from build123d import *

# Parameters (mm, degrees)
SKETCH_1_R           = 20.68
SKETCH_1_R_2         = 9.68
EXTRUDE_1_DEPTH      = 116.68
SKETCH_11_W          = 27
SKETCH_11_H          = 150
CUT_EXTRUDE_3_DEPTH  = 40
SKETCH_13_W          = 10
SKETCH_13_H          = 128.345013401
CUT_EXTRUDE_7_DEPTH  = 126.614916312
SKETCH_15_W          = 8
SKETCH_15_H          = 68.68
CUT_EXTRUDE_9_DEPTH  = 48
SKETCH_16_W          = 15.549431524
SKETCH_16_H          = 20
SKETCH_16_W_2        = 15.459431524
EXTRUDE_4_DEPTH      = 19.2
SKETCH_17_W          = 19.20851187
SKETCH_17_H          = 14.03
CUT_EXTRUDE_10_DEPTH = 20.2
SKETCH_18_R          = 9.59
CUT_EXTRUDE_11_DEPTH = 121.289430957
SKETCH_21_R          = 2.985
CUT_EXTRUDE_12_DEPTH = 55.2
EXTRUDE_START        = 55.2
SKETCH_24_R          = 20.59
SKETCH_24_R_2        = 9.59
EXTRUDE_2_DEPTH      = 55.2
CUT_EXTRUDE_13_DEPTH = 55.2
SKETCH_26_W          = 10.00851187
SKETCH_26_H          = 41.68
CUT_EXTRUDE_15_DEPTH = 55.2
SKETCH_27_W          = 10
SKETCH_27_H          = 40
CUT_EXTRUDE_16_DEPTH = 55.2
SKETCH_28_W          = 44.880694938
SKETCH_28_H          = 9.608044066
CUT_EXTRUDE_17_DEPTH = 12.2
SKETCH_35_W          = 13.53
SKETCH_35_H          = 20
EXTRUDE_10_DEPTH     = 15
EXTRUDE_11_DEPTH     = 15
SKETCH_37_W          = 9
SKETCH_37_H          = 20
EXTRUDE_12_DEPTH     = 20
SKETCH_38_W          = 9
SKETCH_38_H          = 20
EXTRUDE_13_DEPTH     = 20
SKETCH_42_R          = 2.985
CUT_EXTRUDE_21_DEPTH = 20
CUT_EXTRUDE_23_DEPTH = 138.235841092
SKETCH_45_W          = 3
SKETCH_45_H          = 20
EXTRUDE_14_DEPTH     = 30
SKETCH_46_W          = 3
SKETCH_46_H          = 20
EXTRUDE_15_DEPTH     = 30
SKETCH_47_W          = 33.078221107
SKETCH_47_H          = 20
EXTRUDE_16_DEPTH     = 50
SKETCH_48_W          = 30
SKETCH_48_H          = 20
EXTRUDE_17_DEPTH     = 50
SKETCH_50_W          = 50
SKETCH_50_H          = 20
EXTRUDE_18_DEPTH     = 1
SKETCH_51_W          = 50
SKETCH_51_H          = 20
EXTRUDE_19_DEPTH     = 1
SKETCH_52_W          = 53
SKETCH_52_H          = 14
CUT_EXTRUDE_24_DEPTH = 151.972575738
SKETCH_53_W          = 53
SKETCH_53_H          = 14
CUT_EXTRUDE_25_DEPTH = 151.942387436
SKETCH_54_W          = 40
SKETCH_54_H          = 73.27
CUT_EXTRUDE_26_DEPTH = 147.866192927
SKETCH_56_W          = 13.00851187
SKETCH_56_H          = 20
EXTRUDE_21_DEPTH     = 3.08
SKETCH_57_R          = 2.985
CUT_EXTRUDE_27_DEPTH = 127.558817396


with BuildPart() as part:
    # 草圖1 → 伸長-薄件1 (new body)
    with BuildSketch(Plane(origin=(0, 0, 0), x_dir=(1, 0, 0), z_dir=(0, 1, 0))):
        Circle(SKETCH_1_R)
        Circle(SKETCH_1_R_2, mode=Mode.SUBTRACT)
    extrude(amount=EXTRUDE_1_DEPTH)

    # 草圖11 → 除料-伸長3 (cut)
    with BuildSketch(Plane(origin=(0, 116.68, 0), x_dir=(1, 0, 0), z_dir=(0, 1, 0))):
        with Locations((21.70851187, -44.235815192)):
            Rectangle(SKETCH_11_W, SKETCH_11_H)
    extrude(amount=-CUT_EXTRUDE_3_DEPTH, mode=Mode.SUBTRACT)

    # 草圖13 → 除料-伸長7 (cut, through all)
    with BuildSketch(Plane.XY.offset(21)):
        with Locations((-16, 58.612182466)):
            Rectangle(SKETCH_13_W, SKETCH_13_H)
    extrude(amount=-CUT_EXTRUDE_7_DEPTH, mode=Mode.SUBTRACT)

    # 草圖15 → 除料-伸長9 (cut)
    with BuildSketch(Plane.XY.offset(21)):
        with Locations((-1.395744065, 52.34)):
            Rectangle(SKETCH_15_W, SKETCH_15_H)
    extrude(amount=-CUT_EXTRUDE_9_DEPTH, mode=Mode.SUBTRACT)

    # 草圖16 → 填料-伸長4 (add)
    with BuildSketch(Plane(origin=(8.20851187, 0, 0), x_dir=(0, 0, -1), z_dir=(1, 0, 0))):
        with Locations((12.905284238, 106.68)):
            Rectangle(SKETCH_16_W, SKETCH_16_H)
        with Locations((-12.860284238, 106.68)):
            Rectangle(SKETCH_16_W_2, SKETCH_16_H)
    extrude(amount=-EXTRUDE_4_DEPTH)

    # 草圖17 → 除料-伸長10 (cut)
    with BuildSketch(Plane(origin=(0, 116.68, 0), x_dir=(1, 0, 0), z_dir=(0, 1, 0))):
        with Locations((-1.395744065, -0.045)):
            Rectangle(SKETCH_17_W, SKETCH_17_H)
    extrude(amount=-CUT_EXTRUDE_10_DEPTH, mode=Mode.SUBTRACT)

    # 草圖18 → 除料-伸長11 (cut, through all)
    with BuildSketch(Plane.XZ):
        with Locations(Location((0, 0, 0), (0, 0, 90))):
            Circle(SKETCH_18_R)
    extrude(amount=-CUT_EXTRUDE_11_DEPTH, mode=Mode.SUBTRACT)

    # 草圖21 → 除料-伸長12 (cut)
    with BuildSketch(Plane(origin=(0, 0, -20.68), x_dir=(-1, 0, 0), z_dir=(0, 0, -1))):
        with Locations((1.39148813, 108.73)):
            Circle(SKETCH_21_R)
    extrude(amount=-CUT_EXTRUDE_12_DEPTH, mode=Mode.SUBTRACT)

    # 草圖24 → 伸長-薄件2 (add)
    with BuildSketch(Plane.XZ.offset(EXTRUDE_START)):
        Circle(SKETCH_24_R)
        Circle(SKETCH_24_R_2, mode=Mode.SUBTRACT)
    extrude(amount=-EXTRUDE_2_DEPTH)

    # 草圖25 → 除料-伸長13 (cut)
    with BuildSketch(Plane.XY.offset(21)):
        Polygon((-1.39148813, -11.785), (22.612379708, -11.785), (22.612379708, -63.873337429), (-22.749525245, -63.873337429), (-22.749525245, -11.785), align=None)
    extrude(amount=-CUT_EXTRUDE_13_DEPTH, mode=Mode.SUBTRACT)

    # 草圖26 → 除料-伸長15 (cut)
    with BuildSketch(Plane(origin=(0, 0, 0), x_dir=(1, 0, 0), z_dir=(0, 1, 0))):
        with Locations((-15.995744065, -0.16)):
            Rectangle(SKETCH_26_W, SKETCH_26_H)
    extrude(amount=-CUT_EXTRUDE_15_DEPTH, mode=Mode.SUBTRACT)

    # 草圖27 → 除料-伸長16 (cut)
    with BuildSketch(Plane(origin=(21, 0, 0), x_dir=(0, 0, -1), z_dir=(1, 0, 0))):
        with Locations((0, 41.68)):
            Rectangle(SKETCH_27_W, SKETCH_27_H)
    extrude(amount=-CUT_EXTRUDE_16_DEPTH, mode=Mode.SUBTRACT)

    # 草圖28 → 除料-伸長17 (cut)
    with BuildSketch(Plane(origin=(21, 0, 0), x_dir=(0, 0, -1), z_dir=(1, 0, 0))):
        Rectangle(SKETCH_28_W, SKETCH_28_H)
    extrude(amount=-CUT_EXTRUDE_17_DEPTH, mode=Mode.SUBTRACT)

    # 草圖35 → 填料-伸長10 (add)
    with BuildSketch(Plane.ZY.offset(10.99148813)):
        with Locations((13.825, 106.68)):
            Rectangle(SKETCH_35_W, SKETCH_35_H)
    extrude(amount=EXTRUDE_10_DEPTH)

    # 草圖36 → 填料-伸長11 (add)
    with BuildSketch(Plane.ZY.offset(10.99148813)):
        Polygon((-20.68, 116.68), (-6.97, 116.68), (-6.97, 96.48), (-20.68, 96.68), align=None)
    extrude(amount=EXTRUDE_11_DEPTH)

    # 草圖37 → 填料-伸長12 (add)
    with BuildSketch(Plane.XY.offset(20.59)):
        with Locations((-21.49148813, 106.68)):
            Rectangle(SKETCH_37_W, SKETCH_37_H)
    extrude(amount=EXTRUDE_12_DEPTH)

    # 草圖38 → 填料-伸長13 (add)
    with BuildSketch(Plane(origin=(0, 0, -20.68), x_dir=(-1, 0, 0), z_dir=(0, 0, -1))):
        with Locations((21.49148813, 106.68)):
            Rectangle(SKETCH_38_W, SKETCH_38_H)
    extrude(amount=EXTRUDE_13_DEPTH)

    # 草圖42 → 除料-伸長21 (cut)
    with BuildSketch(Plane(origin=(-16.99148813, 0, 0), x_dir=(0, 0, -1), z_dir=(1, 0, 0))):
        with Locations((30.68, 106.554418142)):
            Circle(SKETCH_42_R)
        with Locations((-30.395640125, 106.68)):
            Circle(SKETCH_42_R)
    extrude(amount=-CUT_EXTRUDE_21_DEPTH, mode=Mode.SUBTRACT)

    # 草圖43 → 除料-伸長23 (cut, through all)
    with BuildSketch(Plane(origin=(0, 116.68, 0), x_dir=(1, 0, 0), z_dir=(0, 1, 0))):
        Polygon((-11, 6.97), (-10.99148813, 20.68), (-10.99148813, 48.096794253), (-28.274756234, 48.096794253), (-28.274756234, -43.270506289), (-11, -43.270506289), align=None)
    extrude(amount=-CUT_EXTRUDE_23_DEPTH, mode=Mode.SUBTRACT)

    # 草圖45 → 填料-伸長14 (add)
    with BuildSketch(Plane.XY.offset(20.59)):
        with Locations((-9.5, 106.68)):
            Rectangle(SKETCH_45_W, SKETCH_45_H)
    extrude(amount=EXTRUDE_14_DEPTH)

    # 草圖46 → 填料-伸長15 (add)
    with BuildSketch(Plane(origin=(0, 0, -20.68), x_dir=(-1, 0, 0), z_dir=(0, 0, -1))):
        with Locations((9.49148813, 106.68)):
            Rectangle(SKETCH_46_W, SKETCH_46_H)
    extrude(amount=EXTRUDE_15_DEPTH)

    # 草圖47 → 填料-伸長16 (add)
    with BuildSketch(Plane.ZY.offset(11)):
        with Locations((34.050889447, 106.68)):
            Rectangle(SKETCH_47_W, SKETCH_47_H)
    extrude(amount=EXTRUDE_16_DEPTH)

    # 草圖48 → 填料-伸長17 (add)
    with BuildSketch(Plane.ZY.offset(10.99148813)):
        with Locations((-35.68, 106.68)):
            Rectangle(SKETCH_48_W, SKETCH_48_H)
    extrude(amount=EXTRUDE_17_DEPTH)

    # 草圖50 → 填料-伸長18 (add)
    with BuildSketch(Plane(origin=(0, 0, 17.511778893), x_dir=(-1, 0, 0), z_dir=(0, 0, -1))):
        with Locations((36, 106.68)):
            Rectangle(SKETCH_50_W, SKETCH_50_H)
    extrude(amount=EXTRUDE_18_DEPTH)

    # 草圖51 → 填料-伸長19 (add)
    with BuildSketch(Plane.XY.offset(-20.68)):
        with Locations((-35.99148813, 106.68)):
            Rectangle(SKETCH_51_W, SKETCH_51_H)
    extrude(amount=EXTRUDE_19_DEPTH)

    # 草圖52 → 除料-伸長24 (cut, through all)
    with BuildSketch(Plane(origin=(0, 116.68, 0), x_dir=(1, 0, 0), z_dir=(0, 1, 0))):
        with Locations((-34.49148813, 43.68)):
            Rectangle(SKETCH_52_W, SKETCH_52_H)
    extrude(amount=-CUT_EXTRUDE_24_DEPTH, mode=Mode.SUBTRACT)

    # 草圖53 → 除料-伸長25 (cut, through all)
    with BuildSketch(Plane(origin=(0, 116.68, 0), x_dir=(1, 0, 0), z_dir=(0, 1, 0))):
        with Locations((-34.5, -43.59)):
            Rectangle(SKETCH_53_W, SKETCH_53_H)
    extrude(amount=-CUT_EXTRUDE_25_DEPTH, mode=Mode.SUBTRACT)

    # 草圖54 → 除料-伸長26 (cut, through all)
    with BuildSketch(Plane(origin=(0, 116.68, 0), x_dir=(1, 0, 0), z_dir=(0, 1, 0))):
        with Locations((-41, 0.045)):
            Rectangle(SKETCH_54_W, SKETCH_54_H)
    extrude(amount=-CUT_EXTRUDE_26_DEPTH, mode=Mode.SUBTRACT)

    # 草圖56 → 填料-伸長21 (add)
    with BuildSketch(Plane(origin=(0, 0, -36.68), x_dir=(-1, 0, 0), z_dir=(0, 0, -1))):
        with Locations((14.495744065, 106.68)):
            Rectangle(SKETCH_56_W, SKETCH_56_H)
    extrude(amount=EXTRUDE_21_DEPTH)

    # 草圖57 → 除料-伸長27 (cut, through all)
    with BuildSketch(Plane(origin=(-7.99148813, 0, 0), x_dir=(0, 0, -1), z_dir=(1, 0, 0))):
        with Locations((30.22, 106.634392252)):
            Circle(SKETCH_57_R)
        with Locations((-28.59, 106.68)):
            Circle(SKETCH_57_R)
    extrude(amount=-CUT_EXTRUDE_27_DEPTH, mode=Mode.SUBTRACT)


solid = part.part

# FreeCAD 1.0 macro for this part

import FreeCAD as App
import Part
import Sketcher

V = App.Vector

doc = App.newDocument("Part")
body = doc.addObject("PartDesign::Body", "Body")

sketch1 = body.newObject("Sketcher::SketchObject", "Sketch")
sketch1.AttachmentSupport = (doc.getObject("XZ_Plane"), [""])
sketch1.MapMode = "FlatFace"
sketch1.addGeometry([
    Part.Circle(V(0, 0, 0), V(0, 0, 1), 20.68),
    Part.Circle(V(0, 0, 0), V(0, 0, 1), 9.68),
], False)
sketch1.addConstraint([
    Sketcher.Constraint("Coincident", 0, 3, -1, 1),
    Sketcher.Constraint("Coincident", 1, 3, -1, 1),
    Sketcher.Constraint("Diameter", 0, 41.36),
    Sketcher.Constraint("Diameter", 1, 19.36),
])
pad1 = body.newObject("PartDesign::Pad", "Pad")
pad1.Profile = sketch1
pad1.Length = 116.68
pad1.Reversed = True

sketch2 = body.newObject("Sketcher::SketchObject", "Sketch001")
sketch2.AttachmentSupport = (doc.getObject("XZ_Plane"), [""])
sketch2.MapMode = "FlatFace"
sketch2.AttachmentOffset = App.Placement(V(0, 0, -116.68), App.Rotation())
sketch2.addGeometry([
    Part.LineSegment(V(8.208512, -30.764185, 0), V(8.208512, 119.235815, 0)),
    Part.LineSegment(V(8.208512, 119.235815, 0), V(35.208512, 119.235815, 0)),
    Part.LineSegment(V(35.208512, 119.235815, 0), V(35.208512, -30.764185, 0)),
    Part.LineSegment(V(35.208512, -30.764185, 0), V(8.208512, -30.764185, 0)),
], False)
sketch2.addConstraint([
    Sketcher.Constraint("Coincident", 0, 2, 1, 1),
    Sketcher.Constraint("Coincident", 1, 2, 2, 1),
    Sketcher.Constraint("Coincident", 2, 2, 3, 1),
    Sketcher.Constraint("Coincident", 3, 2, 0, 1),
    Sketcher.Constraint("Vertical", 0),
    Sketcher.Constraint("Horizontal", 1),
    Sketcher.Constraint("Vertical", 2),
    Sketcher.Constraint("Horizontal", 3),
    Sketcher.Constraint("DistanceX", 1, 1, 1, 2, 27.0),
    Sketcher.Constraint("DistanceY", 0, 1, 0, 2, 150.0),
    Sketcher.Constraint("DistanceX", -1, 1, 0, 2, 8.208512),
    Sketcher.Constraint("DistanceY", -1, 1, 0, 2, 119.235815),
])
pocket1 = body.newObject("PartDesign::Pocket", "Pocket")
pocket1.Profile = sketch2
pocket1.Length = 40
pocket1.Reversed = True

sketch3 = body.newObject("Sketcher::SketchObject", "Sketch002")
sketch3.AttachmentSupport = (doc.getObject("XY_Plane"), [""])
sketch3.MapMode = "FlatFace"
sketch3.AttachmentOffset = App.Placement(V(0, 0, 21), App.Rotation())
sketch3.addGeometry([
    Part.LineSegment(V(-21, 122.784689, 0), V(-21, -5.560324, 0)),
    Part.LineSegment(V(-21, -5.560324, 0), V(-11, -5.560324, 0)),
    Part.LineSegment(V(-11, -5.560324, 0), V(-11, 122.784689, 0)),
    Part.LineSegment(V(-11, 122.784689, 0), V(-21, 122.784689, 0)),
], False)
sketch3.addConstraint([
    Sketcher.Constraint("Coincident", 0, 2, 1, 1),
    Sketcher.Constraint("Coincident", 1, 2, 2, 1),
    Sketcher.Constraint("Coincident", 2, 2, 3, 1),
    Sketcher.Constraint("Coincident", 3, 2, 0, 1),
    Sketcher.Constraint("Vertical", 0),
    Sketcher.Constraint("Horizontal", 1),
    Sketcher.Constraint("Vertical", 2),
    Sketcher.Constraint("Horizontal", 3),
    Sketcher.Constraint("DistanceX", 1, 1, 1, 2, 10.0),
    Sketcher.Constraint("DistanceX", 0, 2, -1, 1, 21.0),
    Sketcher.Constraint("DistanceY", 0, 2, 0, 1, 128.345013),
    Sketcher.Constraint("DistanceY", -1, 1, 2, 2, 122.784689),
])
pocket2 = body.newObject("PartDesign::Pocket", "Pocket001")
pocket2.Profile = sketch3
pocket2.Type = "ThroughAll"

sketch4 = body.newObject("Sketcher::SketchObject", "Sketch003")
sketch4.AttachmentSupport = (doc.getObject("XY_Plane"), [""])
sketch4.MapMode = "FlatFace"
sketch4.AttachmentOffset = App.Placement(V(0, 0, 21), App.Rotation())
sketch4.addGeometry([
    Part.LineSegment(V(-5.395744, 86.68, 0), V(-5.395744, 18, 0)),
    Part.LineSegment(V(-5.395744, 18, 0), V(2.604256, 18, 0)),
    Part.LineSegment(V(2.604256, 18, 0), V(2.604256, 86.68, 0)),
    Part.LineSegment(V(2.604256, 86.68, 0), V(-5.395744, 86.68, 0)),
], False)
sketch4.addConstraint([
    Sketcher.Constraint("Coincident", 0, 2, 1, 1),
    Sketcher.Constraint("Coincident", 1, 2, 2, 1),
    Sketcher.Constraint("Coincident", 2, 2, 3, 1),
    Sketcher.Constraint("Coincident", 3, 2, 0, 1),
    Sketcher.Constraint("Vertical", 0),
    Sketcher.Constraint("Horizontal", 1),
    Sketcher.Constraint("Vertical", 2),
    Sketcher.Constraint("Horizontal", 3),
    Sketcher.Constraint("DistanceX", 1, 1, 1, 2, 8.0),
    Sketcher.Constraint("DistanceY", -1, 1, 0, 2, 18.0),
    Sketcher.Constraint("DistanceY", 0, 2, 0, 1, 68.68),
    Sketcher.Constraint("DistanceX", 0, 2, -1, 1, 5.395744),
])
pocket3 = body.newObject("PartDesign::Pocket", "Pocket002")
pocket3.Profile = sketch4
pocket3.Length = 48

sketch5 = body.newObject("Sketcher::SketchObject", "Sketch004")
sketch5.AttachmentSupport = (doc.getObject("YZ_Plane"), [""])
sketch5.MapMode = "FlatFace"
sketch5.AttachmentOffset = App.Placement(V(0, 0, 8.208512), App.Rotation())
sketch5.addGeometry([
    Part.LineSegment(V(116.68, -5.130568, 0), V(96.68, -5.130568, 0)),
    Part.LineSegment(V(96.68, -5.130568, 0), V(96.68, -20.68, 0)),
    Part.LineSegment(V(96.68, -20.68, 0), V(116.68, -20.68, 0)),
    Part.LineSegment(V(116.68, -20.68, 0), V(116.68, -5.130568, 0)),
    Part.LineSegment(V(116.68, 20.59, 0), V(96.68, 20.59, 0)),
    Part.LineSegment(V(96.68, 20.59, 0), V(96.68, 5.130568, 0)),
    Part.LineSegment(V(96.68, 5.130568, 0), V(116.68, 5.130568, 0)),
    Part.LineSegment(V(116.68, 5.130568, 0), V(116.68, 20.59, 0)),
], False)
sketch5.addConstraint([
    Sketcher.Constraint("Coincident", 0, 2, 1, 1),
    Sketcher.Constraint("Coincident", 1, 2, 2, 1),
    Sketcher.Constraint("Coincident", 2, 2, 3, 1),
    Sketcher.Constraint("Coincident", 3, 2, 0, 1),
    Sketcher.Constraint("Coincident", 4, 2, 5, 1),
    Sketcher.Constraint("Coincident", 5, 2, 6, 1),
    Sketcher.Constraint("Coincident", 6, 2, 7, 1),
    Sketcher.Constraint("Coincident", 7, 2, 4, 1),
    Sketcher.Constraint("Horizontal", 0),
    Sketcher.Constraint("Vertical", 1),
    Sketcher.Constraint("Horizontal", 2),
    Sketcher.Constraint("Vertical", 3),
    Sketcher.Constraint("Horizontal", 4),
    Sketcher.Constraint("Vertical", 5),
    Sketcher.Constraint("Horizontal", 6),
    Sketcher.Constraint("Vertical", 7),
    Sketcher.Constraint("Symmetric", 0, 2, 5, 2, -1),
    Sketcher.Constraint("Vertical", 3, 2, 6, 2),
    Sketcher.Constraint("DistanceX", 0, 2, 0, 1, 20.0),
    Sketcher.Constraint("DistanceX", -1, 1, 0, 2, 96.68),
    Sketcher.Constraint("DistanceY", 1, 2, -1, 1, 20.68),
    Sketcher.Constraint("DistanceY", -1, 1, 4, 2, 20.59),
    Sketcher.Constraint("DistanceY", 1, 2, 1, 1, 15.549432),
])
pad2 = body.newObject("PartDesign::Pad", "Pad001")
pad2.Profile = sketch5
pad2.Length = 19.2
pad2.Reversed = True

sketch6 = body.newObject("Sketcher::SketchObject", "Sketch005")
sketch6.AttachmentSupport = (doc.getObject("XZ_Plane"), [""])
sketch6.MapMode = "FlatFace"
sketch6.AttachmentOffset = App.Placement(V(0, 0, -116.68), App.Rotation())
sketch6.addGeometry([
    Part.LineSegment(V(-11, -6.97, 0), V(-11, 7.06, 0)),
    Part.LineSegment(V(-11, 7.06, 0), V(8.208512, 7.06, 0)),
    Part.LineSegment(V(8.208512, 7.06, 0), V(8.208512, -6.97, 0)),
    Part.LineSegment(V(8.208512, -6.97, 0), V(-11, -6.97, 0)),
], False)
sketch6.addConstraint([
    Sketcher.Constraint("Coincident", 0, 2, 1, 1),
    Sketcher.Constraint("Coincident", 1, 2, 2, 1),
    Sketcher.Constraint("Coincident", 2, 2, 3, 1),
    Sketcher.Constraint("Coincident", 3, 2, 0, 1),
    Sketcher.Constraint("Vertical", 0),
    Sketcher.Constraint("Horizontal", 1),
    Sketcher.Constraint("Vertical", 2),
    Sketcher.Constraint("Horizontal", 3),
    Sketcher.Constraint("DistanceX", 0, 2, -1, 1, 11.0),
    Sketcher.Constraint("DistanceY", 0, 1, 0, 2, 14.03),
    Sketcher.Constraint("DistanceY", -1, 1, 0, 2, 7.06),
    Sketcher.Constraint("DistanceX", 1, 1, 1, 2, 19.208512),
])
pocket4 = body.newObject("PartDesign::Pocket", "Pocket003")
pocket4.Profile = sketch6
pocket4.Length = 20.2
pocket4.Reversed = True

sketch7 = body.newObject("Sketcher::SketchObject", "Sketch006")
sketch7.AttachmentSupport = (doc.getObject("XZ_Plane"), [""])
sketch7.MapMode = "FlatFace"
sketch7.addGeometry(Part.Circle(V(0, 0, 0), V(0, 0, 1), 9.59), False)
sketch7.addConstraint([
    Sketcher.Constraint("Coincident", 0, 3, -1, 1),
    Sketcher.Constraint("Diameter", 0, 19.18),
])
pocket5 = body.newObject("PartDesign::Pocket", "Pocket004")
pocket5.Profile = sketch7
pocket5.Type = "ThroughAll"

sketch8 = body.newObject("Sketcher::SketchObject", "Sketch007")
sketch8.AttachmentSupport = (doc.getObject("XY_Plane"), [""])
sketch8.MapMode = "FlatFace"
sketch8.AttachmentOffset = App.Placement(V(0, 0, -20.68), App.Rotation())
sketch8.addGeometry(Part.Circle(V(-1.391488, 108.73, 0), V(0, 0, 1), 2.985), False)
sketch8.addConstraint([
    Sketcher.Constraint("Diameter", 0, 5.97),
    Sketcher.Constraint("DistanceY", -1, 1, 0, 3, 108.73),
    Sketcher.Constraint("DistanceX", 0, 3, -1, 1, 1.391488),
])
pocket6 = body.newObject("PartDesign::Pocket", "Pocket005")
pocket6.Profile = sketch8
pocket6.Length = 55.2
pocket6.Reversed = True

sketch9 = body.newObject("Sketcher::SketchObject", "Sketch008")
sketch9.AttachmentSupport = (doc.getObject("XZ_Plane"), [""])
sketch9.MapMode = "FlatFace"
sketch9.AttachmentOffset = App.Placement(V(0, 0, 55.2), App.Rotation())
sketch9.addGeometry([
    Part.Circle(V(0, 0, 0), V(0, 0, 1), 20.59),
    Part.Circle(V(0, 0, 0), V(0, 0, 1), 9.59),
], False)
sketch9.addConstraint([
    Sketcher.Constraint("Coincident", 0, 3, -1, 1),
    Sketcher.Constraint("Coincident", 1, 3, -1, 1),
    Sketcher.Constraint("Diameter", 0, 41.18),
    Sketcher.Constraint("Diameter", 1, 19.18),
])
pad3 = body.newObject("PartDesign::Pad", "Pad002")
pad3.Profile = sketch9
pad3.Length = 55.2
pad3.Reversed = True

sketch10 = body.newObject("Sketcher::SketchObject", "Sketch009")
sketch10.AttachmentSupport = (doc.getObject("XY_Plane"), [""])
sketch10.MapMode = "FlatFace"
sketch10.AttachmentOffset = App.Placement(V(0, 0, 21), App.Rotation())
sketch10.addGeometry([
    Part.LineSegment(V(22.61238, -11.785, 0), V(-22.749525, -11.785, 0)),
    Part.LineSegment(V(-22.749525, -11.785, 0), V(-22.749525, -63.873337, 0)),
    Part.LineSegment(V(-22.749525, -63.873337, 0), V(22.61238, -63.873337, 0)),
    Part.LineSegment(V(22.61238, -63.873337, 0), V(22.61238, -11.785, 0)),
], False)
sketch10.addConstraint([
    Sketcher.Constraint("Coincident", 0, 2, 1, 1),
    Sketcher.Constraint("Coincident", 1, 2, 2, 1),
    Sketcher.Constraint("Coincident", 2, 2, 3, 1),
    Sketcher.Constraint("Coincident", 3, 2, 0, 1),
    Sketcher.Constraint("Horizontal", 0),
    Sketcher.Constraint("Vertical", 1),
    Sketcher.Constraint("Horizontal", 2),
    Sketcher.Constraint("Vertical", 3),
    Sketcher.Constraint("DistanceY", 0, 2, -1, 1, 11.785),
    Sketcher.Constraint("DistanceX", 0, 2, 0, 1, 45.361905),
    Sketcher.Constraint("DistanceY", 1, 2, 1, 1, 52.088337),
    Sketcher.Constraint("DistanceX", -1, 1, 2, 2, 22.61238),
])
pocket7 = body.newObject("PartDesign::Pocket", "Pocket006")
pocket7.Profile = sketch10
pocket7.Length = 55.2

sketch11 = body.newObject("Sketcher::SketchObject", "Sketch010")
sketch11.AttachmentSupport = (doc.getObject("XZ_Plane"), [""])
sketch11.MapMode = "FlatFace"
sketch11.addGeometry([
    Part.LineSegment(V(-21, -20.68, 0), V(-21, 21, 0)),
    Part.LineSegment(V(-21, 21, 0), V(-10.991488, 21, 0)),
    Part.LineSegment(V(-10.991488, 21, 0), V(-10.991488, -20.68, 0)),
    Part.LineSegment(V(-10.991488, -20.68, 0), V(-21, -20.68, 0)),
], False)
sketch11.addConstraint([
    Sketcher.Constraint("Coincident", 0, 2, 1, 1),
    Sketcher.Constraint("Coincident", 1, 2, 2, 1),
    Sketcher.Constraint("Coincident", 2, 2, 3, 1),
    Sketcher.Constraint("Coincident", 3, 2, 0, 1),
    Sketcher.Constraint("Vertical", 0),
    Sketcher.Constraint("Horizontal", 1),
    Sketcher.Constraint("Vertical", 2),
    Sketcher.Constraint("Horizontal", 3),
    Sketcher.Constraint("DistanceX", 0, 2, -1, 1, 21.0),
    Sketcher.Constraint("DistanceY", -1, 1, 0, 2, 21.0),
    Sketcher.Constraint("DistanceY", 0, 1, 0, 2, 41.68),
    Sketcher.Constraint("DistanceX", 1, 1, 1, 2, 10.008512),
])
pocket8 = body.newObject("PartDesign::Pocket", "Pocket007")
pocket8.Profile = sketch11
pocket8.Length = 55.2
pocket8.Reversed = True

sketch12 = body.newObject("Sketcher::SketchObject", "Sketch011")
sketch12.AttachmentSupport = (doc.getObject("YZ_Plane"), [""])
sketch12.MapMode = "FlatFace"
sketch12.AttachmentOffset = App.Placement(V(0, 0, 21), App.Rotation())
sketch12.addGeometry([
    Part.LineSegment(V(61.68, 5, 0), V(21.68, 5, 0)),
    Part.LineSegment(V(21.68, 5, 0), V(21.68, -5, 0)),
    Part.LineSegment(V(21.68, -5, 0), V(61.68, -5, 0)),
    Part.LineSegment(V(61.68, -5, 0), V(61.68, 5, 0)),
], False)
sketch12.addConstraint([
    Sketcher.Constraint("Coincident", 0, 2, 1, 1),
    Sketcher.Constraint("Coincident", 1, 2, 2, 1),
    Sketcher.Constraint("Coincident", 2, 2, 3, 1),
    Sketcher.Constraint("Coincident", 3, 2, 0, 1),
    Sketcher.Constraint("Horizontal", 0),
    Sketcher.Constraint("Vertical", 1),
    Sketcher.Constraint("Horizontal", 2),
    Sketcher.Constraint("Vertical", 3),
    Sketcher.Constraint("DistanceX", 0, 2, 0, 1, 40.0),
    Sketcher.Constraint("DistanceY", 1, 2, 1, 1, 10.0),
    Sketcher.Constraint("DistanceY", -1, 1, 0, 2, 5.0),
    Sketcher.Constraint("DistanceX", -1, 1, 0, 2, 21.68),
])
pocket9 = body.newObject("PartDesign::Pocket", "Pocket008")
pocket9.Profile = sketch12
pocket9.Length = 55.2

sketch13 = body.newObject("Sketcher::SketchObject", "Sketch012")
sketch13.AttachmentSupport = (doc.getObject("YZ_Plane"), [""])
sketch13.MapMode = "FlatFace"
sketch13.AttachmentOffset = App.Placement(V(0, 0, 21), App.Rotation())
sketch13.addGeometry([
    Part.LineSegment(V(4.804022, 22.440347, 0), V(-4.804022, 22.440347, 0)),
    Part.LineSegment(V(-4.804022, 22.440347, 0), V(-4.804022, -22.440347, 0)),
    Part.LineSegment(V(-4.804022, -22.440347, 0), V(4.804022, -22.440347, 0)),
    Part.LineSegment(V(4.804022, -22.440347, 0), V(4.804022, 22.440347, 0)),
], False)
sketch13.addConstraint([
    Sketcher.Constraint("Coincident", 0, 2, 1, 1),
    Sketcher.Constraint("Coincident", 1, 2, 2, 1),
    Sketcher.Constraint("Coincident", 2, 2, 3, 1),
    Sketcher.Constraint("Coincident", 3, 2, 0, 1),
    Sketcher.Constraint("Horizontal", 0),
    Sketcher.Constraint("Vertical", 1),
    Sketcher.Constraint("Horizontal", 2),
    Sketcher.Constraint("Vertical", 3),
    Sketcher.Constraint("Symmetric", 0, 2, 2, 2, -1, 1),
    Sketcher.Constraint("DistanceX", 0, 2, 0, 1, 9.608044),
    Sketcher.Constraint("DistanceY", 1, 2, 1, 1, 44.880695),
])
pocket10 = body.newObject("PartDesign::Pocket", "Pocket009")
pocket10.Profile = sketch13
pocket10.Length = 12.2

sketch14 = body.newObject("Sketcher::SketchObject", "Sketch013")
sketch14.AttachmentSupport = (doc.getObject("YZ_Plane"), [""])
sketch14.MapMode = "FlatFace"
sketch14.AttachmentOffset = App.Placement(V(0, 0, -10.991488), App.Rotation())
sketch14.addGeometry([
    Part.LineSegment(V(116.68, 7.06, 0), V(96.68, 7.06, 0)),
    Part.LineSegment(V(96.68, 7.06, 0), V(96.68, 20.59, 0)),
    Part.LineSegment(V(96.68, 20.59, 0), V(116.68, 20.59, 0)),
    Part.LineSegment(V(116.68, 20.59, 0), V(116.68, 7.06, 0)),
], False)
sketch14.addConstraint([
    Sketcher.Constraint("Coincident", 0, 2, 1, 1),
    Sketcher.Constraint("Coincident", 1, 2, 2, 1),
    Sketcher.Constraint("Coincident", 2, 2, 3, 1),
    Sketcher.Constraint("Coincident", 3, 2, 0, 1),
    Sketcher.Constraint("Horizontal", 0),
    Sketcher.Constraint("Vertical", 1),
    Sketcher.Constraint("Horizontal", 2),
    Sketcher.Constraint("Vertical", 3),
    Sketcher.Constraint("DistanceX", 0, 2, 0, 1, 20.0),
    Sketcher.Constraint("DistanceY", 1, 1, 1, 2, 13.53),
    Sketcher.Constraint("DistanceX", -1, 1, 0, 2, 96.68),
    Sketcher.Constraint("DistanceY", -1, 1, 0, 2, 7.06),
])
pad4 = body.newObject("PartDesign::Pad", "Pad003")
pad4.Profile = sketch14
pad4.Length = 15
pad4.Reversed = True

sketch15 = body.newObject("Sketcher::SketchObject", "Sketch014")
sketch15.AttachmentSupport = (doc.getObject("YZ_Plane"), [""])
sketch15.MapMode = "FlatFace"
sketch15.AttachmentOffset = App.Placement(V(0, 0, -10.991488), App.Rotation())
sketch15.addGeometry([
    Part.LineSegment(V(116.68, -6.97, 0), V(116.68, -20.68, 0)),
    Part.LineSegment(V(116.68, -20.68, 0), V(96.68, -20.68, 0)),
    Part.LineSegment(V(96.68, -20.68, 0), V(96.48, -6.97, 0)),
    Part.LineSegment(V(96.48, -6.97, 0), V(116.68, -6.97, 0)),
], False)
sketch15.addConstraint([
    Sketcher.Constraint("Coincident", 0, 2, 1, 1),
    Sketcher.Constraint("Coincident", 1, 2, 2, 1),
    Sketcher.Constraint("Coincident", 2, 2, 3, 1),
    Sketcher.Constraint("Coincident", 3, 2, 0, 1),
    Sketcher.Constraint("Vertical", 0),
    Sketcher.Constraint("Horizontal", 1),
    Sketcher.Constraint("Horizontal", 3),
    Sketcher.Constraint("DistanceX", 1, 2, 1, 1, 20.0),
    Sketcher.Constraint("DistanceX", 3, 1, 3, 2, 20.2),
    Sketcher.Constraint("DistanceY", 0, 2, 0, 1, 13.71),
    Sketcher.Constraint("DistanceX", -1, 1, 0, 2, 116.68),
    Sketcher.Constraint("DistanceY", 0, 2, -1, 1, 20.68),
])
pad5 = body.newObject("PartDesign::Pad", "Pad004")
pad5.Profile = sketch15
pad5.Length = 15
pad5.Reversed = True

sketch16 = body.newObject("Sketcher::SketchObject", "Sketch015")
sketch16.AttachmentSupport = (doc.getObject("XY_Plane"), [""])
sketch16.MapMode = "FlatFace"
sketch16.AttachmentOffset = App.Placement(V(0, 0, 20.59), App.Rotation())
sketch16.addGeometry([
    Part.LineSegment(V(-25.991488, 116.68, 0), V(-25.991488, 96.68, 0)),
    Part.LineSegment(V(-25.991488, 96.68, 0), V(-16.991488, 96.68, 0)),
    Part.LineSegment(V(-16.991488, 96.68, 0), V(-16.991488, 116.68, 0)),
    Part.LineSegment(V(-16.991488, 116.68, 0), V(-25.991488, 116.68, 0)),
], False)
sketch16.addConstraint([
    Sketcher.Constraint("Coincident", 0, 2, 1, 1),
    Sketcher.Constraint("Coincident", 1, 2, 2, 1),
    Sketcher.Constraint("Coincident", 2, 2, 3, 1),
    Sketcher.Constraint("Coincident", 3, 2, 0, 1),
    Sketcher.Constraint("Vertical", 0),
    Sketcher.Constraint("Horizontal", 1),
    Sketcher.Constraint("Vertical", 2),
    Sketcher.Constraint("Horizontal", 3),
    Sketcher.Constraint("DistanceX", 1, 1, 1, 2, 9.0),
    Sketcher.Constraint("DistanceY", 0, 2, 0, 1, 20.0),
    Sketcher.Constraint("DistanceY", -1, 1, 0, 2, 96.68),
    Sketcher.Constraint("DistanceX", 0, 2, -1, 1, 25.991488),
])
pad6 = body.newObject("PartDesign::Pad", "Pad005")
pad6.Profile = sketch16
pad6.Length = 20

sketch17 = body.newObject("Sketcher::SketchObject", "Sketch016")
sketch17.AttachmentSupport = (doc.getObject("XY_Plane"), [""])
sketch17.MapMode = "FlatFace"
sketch17.AttachmentOffset = App.Placement(V(0, 0, -20.68), App.Rotation())
sketch17.addGeometry([
    Part.LineSegment(V(-16.991488, 116.68, 0), V(-16.991488, 96.68, 0)),
    Part.LineSegment(V(-16.991488, 96.68, 0), V(-25.991488, 96.68, 0)),
    Part.LineSegment(V(-25.991488, 96.68, 0), V(-25.991488, 116.68, 0)),
    Part.LineSegment(V(-25.991488, 116.68, 0), V(-16.991488, 116.68, 0)),
], False)
sketch17.addConstraint([
    Sketcher.Constraint("Coincident", 0, 2, 1, 1),
    Sketcher.Constraint("Coincident", 1, 2, 2, 1),
    Sketcher.Constraint("Coincident", 2, 2, 3, 1),
    Sketcher.Constraint("Coincident", 3, 2, 0, 1),
    Sketcher.Constraint("Vertical", 0),
    Sketcher.Constraint("Horizontal", 1),
    Sketcher.Constraint("Vertical", 2),
    Sketcher.Constraint("Horizontal", 3),
    Sketcher.Constraint("DistanceX", 1, 2, 1, 1, 9.0),
    Sketcher.Constraint("DistanceY", 0, 2, 0, 1, 20.0),
    Sketcher.Constraint("DistanceY", -1, 1, 0, 2, 96.68),
    Sketcher.Constraint("DistanceX", 0, 2, -1, 1, 16.991488),
])
pad7 = body.newObject("PartDesign::Pad", "Pad006")
pad7.Profile = sketch17
pad7.Length = 20
pad7.Reversed = True

sketch18 = body.newObject("Sketcher::SketchObject", "Sketch017")
sketch18.AttachmentSupport = (doc.getObject("YZ_Plane"), [""])
sketch18.MapMode = "FlatFace"
sketch18.AttachmentOffset = App.Placement(V(0, 0, -16.991488), App.Rotation())
sketch18.addGeometry([
    Part.Circle(V(106.554418, -30.68, 0), V(0, 0, 1), 2.985),
    Part.Circle(V(106.68, 30.39564, 0), V(0, 0, 1), 2.985),
], False)
sketch18.addConstraint([
    Sketcher.Constraint("Equal", 0, 1),
    Sketcher.Constraint("Diameter", 0, 5.97),
    Sketcher.Constraint("DistanceY", 0, 3, -1, 1, 30.68),
    Sketcher.Constraint("DistanceX", -1, 1, 1, 3, 106.68),
    Sketcher.Constraint("DistanceX", -1, 1, 0, 3, 106.554418),
    Sketcher.Constraint("DistanceY", -1, 1, 1, 3, 30.39564),
])
pocket11 = body.newObject("PartDesign::Pocket", "Pocket010")
pocket11.Profile = sketch18
pocket11.Length = 20

sketch19 = body.newObject("Sketcher::SketchObject", "Sketch018")
sketch19.AttachmentSupport = (doc.getObject("XZ_Plane"), [""])
sketch19.MapMode = "FlatFace"
sketch19.AttachmentOffset = App.Placement(V(0, 0, -116.68), App.Rotation())
sketch19.addGeometry([
    Part.LineSegment(V(-11, -6.97, 0), V(-10.991488, -20.68, 0)),
    Part.LineSegment(V(-10.991488, -20.68, 0), V(-10.991488, -48.096794, 0)),
    Part.LineSegment(V(-10.991488, -48.096794, 0), V(-28.274756, -48.096794, 0)),
    Part.LineSegment(V(-28.274756, -48.096794, 0), V(-28.274756, 43.270506, 0)),
    Part.LineSegment(V(-28.274756, 43.270506, 0), V(-11, 43.270506, 0)),
    Part.LineSegment(V(-11, 43.270506, 0), V(-11, -6.97, 0)),
], False)
sketch19.addConstraint([
    Sketcher.Constraint("Coincident", 0, 2, 1, 1),
    Sketcher.Constraint("Coincident", 1, 2, 2, 1),
    Sketcher.Constraint("Coincident", 2, 2, 3, 1),
    Sketcher.Constraint("Coincident", 3, 2, 4, 1),
    Sketcher.Constraint("Coincident", 4, 2, 5, 1),
    Sketcher.Constraint("Coincident", 5, 2, 0, 1),
    Sketcher.Constraint("Vertical", 1),
    Sketcher.Constraint("Horizontal", 2),
    Sketcher.Constraint("Vertical", 3),
    Sketcher.Constraint("Horizontal", 4),
    Sketcher.Constraint("Vertical", 5),
    Sketcher.Constraint("DistanceX", 4, 2, -1, 1, 11.0),
    Sketcher.Constraint("DistanceY", 0, 2, -1, 1, 20.68),
    Sketcher.Constraint("DistanceY", 5, 2, -1, 1, 6.97),
    Sketcher.Constraint("DistanceY", 3, 1, 3, 2, 91.367301),
    Sketcher.Constraint("DistanceX", 2, 2, 2, 1, 17.283268),
    Sketcher.Constraint("DistanceX", 4, 1, 4, 2, 17.274756),
    Sketcher.Constraint("DistanceY", 1, 2, 1, 1, 27.416794),
])
pocket12 = body.newObject("PartDesign::Pocket", "Pocket011")
pocket12.Profile = sketch19
pocket12.Type = "ThroughAll"
pocket12.Reversed = True

sketch20 = body.newObject("Sketcher::SketchObject", "Sketch019")
sketch20.AttachmentSupport = (doc.getObject("XY_Plane"), [""])
sketch20.MapMode = "FlatFace"
sketch20.AttachmentOffset = App.Placement(V(0, 0, 20.59), App.Rotation())
sketch20.addGeometry([
    Part.LineSegment(V(-11, 116.68, 0), V(-11, 96.68, 0)),
    Part.LineSegment(V(-11, 96.68, 0), V(-8, 96.68, 0)),
    Part.LineSegment(V(-8, 96.68, 0), V(-8, 116.68, 0)),
    Part.LineSegment(V(-8, 116.68, 0), V(-11, 116.68, 0)),
], False)
sketch20.addConstraint([
    Sketcher.Constraint("Coincident", 0, 2, 1, 1),
    Sketcher.Constraint("Coincident", 1, 2, 2, 1),
    Sketcher.Constraint("Coincident", 2, 2, 3, 1),
    Sketcher.Constraint("Coincident", 3, 2, 0, 1),
    Sketcher.Constraint("Vertical", 0),
    Sketcher.Constraint("Horizontal", 1),
    Sketcher.Constraint("Vertical", 2),
    Sketcher.Constraint("Horizontal", 3),
    Sketcher.Constraint("DistanceX", 1, 1, 1, 2, 3.0),
    Sketcher.Constraint("DistanceY", 0, 2, 0, 1, 20.0),
    Sketcher.Constraint("DistanceX", 0, 2, -1, 1, 11.0),
    Sketcher.Constraint("DistanceY", -1, 1, 0, 2, 96.68),
])
pad8 = body.newObject("PartDesign::Pad", "Pad007")
pad8.Profile = sketch20
pad8.Length = 30

sketch21 = body.newObject("Sketcher::SketchObject", "Sketch020")
sketch21.AttachmentSupport = (doc.getObject("XY_Plane"), [""])
sketch21.MapMode = "FlatFace"
sketch21.AttachmentOffset = App.Placement(V(0, 0, -20.68), App.Rotation())
sketch21.addGeometry([
    Part.LineSegment(V(-7.991488, 116.68, 0), V(-7.991488, 96.68, 0)),
    Part.LineSegment(V(-7.991488, 96.68, 0), V(-10.991488, 96.68, 0)),
    Part.LineSegment(V(-10.991488, 96.68, 0), V(-10.991488, 116.68, 0)),
    Part.LineSegment(V(-10.991488, 116.68, 0), V(-7.991488, 116.68, 0)),
], False)
sketch21.addConstraint([
    Sketcher.Constraint("Coincident", 0, 2, 1, 1),
    Sketcher.Constraint("Coincident", 1, 2, 2, 1),
    Sketcher.Constraint("Coincident", 2, 2, 3, 1),
    Sketcher.Constraint("Coincident", 3, 2, 0, 1),
    Sketcher.Constraint("Vertical", 0),
    Sketcher.Constraint("Horizontal", 1),
    Sketcher.Constraint("Vertical", 2),
    Sketcher.Constraint("Horizontal", 3),
    Sketcher.Constraint("DistanceX", 1, 2, 1, 1, 3.0),
    Sketcher.Constraint("DistanceY", 0, 2, 0, 1, 20.0),
    Sketcher.Constraint("DistanceY", -1, 1, 0, 2, 96.68),
    Sketcher.Constraint("DistanceX", 0, 2, -1, 1, 7.991488),
])
pad9 = body.newObject("PartDesign::Pad", "Pad008")
pad9.Profile = sketch21
pad9.Length = 30
pad9.Reversed = True

sketch22 = body.newObject("Sketcher::SketchObject", "Sketch021")
sketch22.AttachmentSupport = (doc.getObject("YZ_Plane"), [""])
sketch22.MapMode = "FlatFace"
sketch22.AttachmentOffset = App.Placement(V(0, 0, -11), App.Rotation())
sketch22.addGeometry([
    Part.LineSegment(V(116.68, 17.511779, 0), V(96.68, 17.511779, 0)),
    Part.LineSegment(V(96.68, 17.511779, 0), V(96.68, 50.59, 0)),
    Part.LineSegment(V(96.68, 50.59, 0), V(116.68, 50.59, 0)),
    Part.LineSegment(V(116.68, 50.59, 0), V(116.68, 17.511779, 0)),
], False)
sketch22.addConstraint([
    Sketcher.Constraint("Coincident", 0, 2, 1, 1),
    Sketcher.Constraint("Coincident", 1, 2, 2, 1),
    Sketcher.Constraint("Coincident", 2, 2, 3, 1),
    Sketcher.Constraint("Coincident", 3, 2, 0, 1),
    Sketcher.Constraint("Horizontal", 0),
    Sketcher.Constraint("Vertical", 1),
    Sketcher.Constraint("Horizontal", 2),
    Sketcher.Constraint("Vertical", 3),
    Sketcher.Constraint("DistanceX", 0, 2, 0, 1, 20.0),
    Sketcher.Constraint("DistanceX", -1, 1, 0, 2, 96.68),
    Sketcher.Constraint("DistanceY", -1, 1, 1, 2, 50.59),
    Sketcher.Constraint("DistanceY", 1, 1, 1, 2, 33.078221),
])
pad10 = body.newObject("PartDesign::Pad", "Pad009")
pad10.Profile = sketch22
pad10.Length = 50
pad10.Reversed = True

sketch23 = body.newObject("Sketcher::SketchObject", "Sketch022")
sketch23.AttachmentSupport = (doc.getObject("YZ_Plane"), [""])
sketch23.MapMode = "FlatFace"
sketch23.AttachmentOffset = App.Placement(V(0, 0, -10.991488), App.Rotation())
sketch23.addGeometry([
    Part.LineSegment(V(116.68, -50.68, 0), V(96.68, -50.68, 0)),
    Part.LineSegment(V(96.68, -50.68, 0), V(96.68, -20.68, 0)),
    Part.LineSegment(V(96.68, -20.68, 0), V(116.68, -20.68, 0)),
    Part.LineSegment(V(116.68, -20.68, 0), V(116.68, -50.68, 0)),
], False)
sketch23.addConstraint([
    Sketcher.Constraint("Coincident", 0, 2, 1, 1),
    Sketcher.Constraint("Coincident", 1, 2, 2, 1),
    Sketcher.Constraint("Coincident", 2, 2, 3, 1),
    Sketcher.Constraint("Coincident", 3, 2, 0, 1),
    Sketcher.Constraint("Horizontal", 0),
    Sketcher.Constraint("Vertical", 1),
    Sketcher.Constraint("Horizontal", 2),
    Sketcher.Constraint("Vertical", 3),
    Sketcher.Constraint("DistanceX", 0, 2, 0, 1, 20.0),
    Sketcher.Constraint("DistanceY", 1, 1, 1, 2, 30.0),
    Sketcher.Constraint("DistanceX", -1, 1, 0, 2, 96.68),
    Sketcher.Constraint("DistanceY", 0, 2, -1, 1, 50.68),
])
pad11 = body.newObject("PartDesign::Pad", "Pad010")
pad11.Profile = sketch23
pad11.Length = 50
pad11.Reversed = True

sketch24 = body.newObject("Sketcher::SketchObject", "Sketch023")
sketch24.AttachmentSupport = (doc.getObject("XY_Plane"), [""])
sketch24.MapMode = "FlatFace"
sketch24.AttachmentOffset = App.Placement(V(0, 0, 17.511779), App.Rotation())
sketch24.addGeometry([
    Part.LineSegment(V(-11, 116.68, 0), V(-11, 96.68, 0)),
    Part.LineSegment(V(-11, 96.68, 0), V(-61, 96.68, 0)),
    Part.LineSegment(V(-61, 96.68, 0), V(-61, 116.68, 0)),
    Part.LineSegment(V(-61, 116.68, 0), V(-11, 116.68, 0)),
], False)
sketch24.addConstraint([
    Sketcher.Constraint("Coincident", 0, 2, 1, 1),
    Sketcher.Constraint("Coincident", 1, 2, 2, 1),
    Sketcher.Constraint("Coincident", 2, 2, 3, 1),
    Sketcher.Constraint("Coincident", 3, 2, 0, 1),
    Sketcher.Constraint("Vertical", 0),
    Sketcher.Constraint("Horizontal", 1),
    Sketcher.Constraint("Vertical", 2),
    Sketcher.Constraint("Horizontal", 3),
    Sketcher.Constraint("DistanceX", 1, 2, 1, 1, 50.0),
    Sketcher.Constraint("DistanceY", 0, 2, 0, 1, 20.0),
    Sketcher.Constraint("DistanceX", 0, 2, -1, 1, 11.0),
    Sketcher.Constraint("DistanceY", -1, 1, 0, 2, 96.68),
])
pad12 = body.newObject("PartDesign::Pad", "Pad011")
pad12.Profile = sketch24
pad12.Length = 1
pad12.Reversed = True

sketch25 = body.newObject("Sketcher::SketchObject", "Sketch024")
sketch25.AttachmentSupport = (doc.getObject("XY_Plane"), [""])
sketch25.MapMode = "FlatFace"
sketch25.AttachmentOffset = App.Placement(V(0, 0, -20.68), App.Rotation())
sketch25.addGeometry([
    Part.LineSegment(V(-60.991488, 116.68, 0), V(-60.991488, 96.68, 0)),
    Part.LineSegment(V(-60.991488, 96.68, 0), V(-10.991488, 96.68, 0)),
    Part.LineSegment(V(-10.991488, 96.68, 0), V(-10.991488, 116.68, 0)),
    Part.LineSegment(V(-10.991488, 116.68, 0), V(-60.991488, 116.68, 0)),
], False)
sketch25.addConstraint([
    Sketcher.Constraint("Coincident", 0, 2, 1, 1),
    Sketcher.Constraint("Coincident", 1, 2, 2, 1),
    Sketcher.Constraint("Coincident", 2, 2, 3, 1),
    Sketcher.Constraint("Coincident", 3, 2, 0, 1),
    Sketcher.Constraint("Vertical", 0),
    Sketcher.Constraint("Horizontal", 1),
    Sketcher.Constraint("Vertical", 2),
    Sketcher.Constraint("Horizontal", 3),
    Sketcher.Constraint("DistanceX", 1, 1, 1, 2, 50.0),
    Sketcher.Constraint("DistanceY", 0, 2, 0, 1, 20.0),
    Sketcher.Constraint("DistanceY", -1, 1, 0, 2, 96.68),
    Sketcher.Constraint("DistanceX", 0, 2, -1, 1, 60.991488),
])
pad13 = body.newObject("PartDesign::Pad", "Pad012")
pad13.Profile = sketch25
pad13.Length = 1

sketch26 = body.newObject("Sketcher::SketchObject", "Sketch025")
sketch26.AttachmentSupport = (doc.getObject("XZ_Plane"), [""])
sketch26.MapMode = "FlatFace"
sketch26.AttachmentOffset = App.Placement(V(0, 0, -116.68), App.Rotation())
sketch26.addGeometry([
    Part.LineSegment(V(-60.991488, -50.68, 0), V(-60.991488, -36.68, 0)),
    Part.LineSegment(V(-60.991488, -36.68, 0), V(-7.991488, -36.68, 0)),
    Part.LineSegment(V(-7.991488, -36.68, 0), V(-7.991488, -50.68, 0)),
    Part.LineSegment(V(-7.991488, -50.68, 0), V(-60.991488, -50.68, 0)),
], False)
sketch26.addConstraint([
    Sketcher.Constraint("Coincident", 0, 2, 1, 1),
    Sketcher.Constraint("Coincident", 1, 2, 2, 1),
    Sketcher.Constraint("Coincident", 2, 2, 3, 1),
    Sketcher.Constraint("Coincident", 3, 2, 0, 1),
    Sketcher.Constraint("Vertical", 0),
    Sketcher.Constraint("Horizontal", 1),
    Sketcher.Constraint("Vertical", 2),
    Sketcher.Constraint("Horizontal", 3),
    Sketcher.Constraint("DistanceX", 1, 1, 1, 2, 53.0),
    Sketcher.Constraint("DistanceY", 0, 1, 0, 2, 14.0),
    Sketcher.Constraint("DistanceY", 0, 2, -1, 1, 36.68),
    Sketcher.Constraint("DistanceX", 0, 2, -1, 1, 60.991488),
])
pocket13 = body.newObject("PartDesign::Pocket", "Pocket012")
pocket13.Profile = sketch26
pocket13.Type = "ThroughAll"
pocket13.Reversed = True

sketch27 = body.newObject("Sketcher::SketchObject", "Sketch026")
sketch27.AttachmentSupport = (doc.getObject("XZ_Plane"), [""])
sketch27.MapMode = "FlatFace"
sketch27.AttachmentOffset = App.Placement(V(0, 0, -116.68), App.Rotation())
sketch27.addGeometry([
    Part.LineSegment(V(-61, 36.59, 0), V(-61, 50.59, 0)),
    Part.LineSegment(V(-61, 50.59, 0), V(-8, 50.59, 0)),
    Part.LineSegment(V(-8, 50.59, 0), V(-8, 36.59, 0)),
    Part.LineSegment(V(-8, 36.59, 0), V(-61, 36.59, 0)),
], False)
sketch27.addConstraint([
    Sketcher.Constraint("Coincident", 0, 2, 1, 1),
    Sketcher.Constraint("Coincident", 1, 2, 2, 1),
    Sketcher.Constraint("Coincident", 2, 2, 3, 1),
    Sketcher.Constraint("Coincident", 3, 2, 0, 1),
    Sketcher.Constraint("Vertical", 0),
    Sketcher.Constraint("Horizontal", 1),
    Sketcher.Constraint("Vertical", 2),
    Sketcher.Constraint("Horizontal", 3),
    Sketcher.Constraint("DistanceX", 1, 1, 1, 2, 53.0),
    Sketcher.Constraint("DistanceY", 0, 1, 0, 2, 14.0),
    Sketcher.Constraint("DistanceX", 0, 2, -1, 1, 61.0),
    Sketcher.Constraint("DistanceY", -1, 1, 0, 2, 50.59),
])
pocket14 = body.newObject("PartDesign::Pocket", "Pocket013")
pocket14.Profile = sketch27
pocket14.Type = "ThroughAll"
pocket14.Reversed = True

sketch28 = body.newObject("Sketcher::SketchObject", "Sketch027")
sketch28.AttachmentSupport = (doc.getObject("XZ_Plane"), [""])
sketch28.MapMode = "FlatFace"
sketch28.AttachmentOffset = App.Placement(V(0, 0, -116.68), App.Rotation())
sketch28.addGeometry([
    Part.LineSegment(V(-61, -36.68, 0), V(-61, 36.59, 0)),
    Part.LineSegment(V(-61, 36.59, 0), V(-21, 36.59, 0)),
    Part.LineSegment(V(-21, 36.59, 0), V(-21, -36.68, 0)),
    Part.LineSegment(V(-21, -36.68, 0), V(-61, -36.68, 0)),
], False)
sketch28.addConstraint([
    Sketcher.Constraint("Coincident", 0, 2, 1, 1),
    Sketcher.Constraint("Coincident", 1, 2, 2, 1),
    Sketcher.Constraint("Coincident", 2, 2, 3, 1),
    Sketcher.Constraint("Coincident", 3, 2, 0, 1),
    Sketcher.Constraint("Vertical", 0),
    Sketcher.Constraint("Horizontal", 1),
    Sketcher.Constraint("Vertical", 2),
    Sketcher.Constraint("Horizontal", 3),
    Sketcher.Constraint("DistanceX", 1, 1, 1, 2, 40.0),
    Sketcher.Constraint("DistanceX", 0, 2, -1, 1, 61.0),
    Sketcher.Constraint("DistanceY", 0, 1, 0, 2, 73.27),
    Sketcher.Constraint("DistanceY", -1, 1, 0, 2, 36.59),
])
pocket15 = body.newObject("PartDesign::Pocket", "Pocket014")
pocket15.Profile = sketch28
pocket15.Type = "ThroughAll"
pocket15.Reversed = True

sketch29 = body.newObject("Sketcher::SketchObject", "Sketch028")
sketch29.AttachmentSupport = (doc.getObject("XY_Plane"), [""])
sketch29.MapMode = "FlatFace"
sketch29.AttachmentOffset = App.Placement(V(0, 0, -36.68), App.Rotation())
sketch29.addGeometry([
    Part.LineSegment(V(-7.991488, 116.68, 0), V(-7.991488, 96.68, 0)),
    Part.LineSegment(V(-7.991488, 96.68, 0), V(-21, 96.68, 0)),
    Part.LineSegment(V(-21, 96.68, 0), V(-21, 116.68, 0)),
    Part.LineSegment(V(-21, 116.68, 0), V(-7.991488, 116.68, 0)),
], False)
sketch29.addConstraint([
    Sketcher.Constraint("Coincident", 0, 2, 1, 1),
    Sketcher.Constraint("Coincident", 1, 2, 2, 1),
    Sketcher.Constraint("Coincident", 2, 2, 3, 1),
    Sketcher.Constraint("Coincident", 3, 2, 0, 1),
    Sketcher.Constraint("Vertical", 0),
    Sketcher.Constraint("Horizontal", 1),
    Sketcher.Constraint("Vertical", 2),
    Sketcher.Constraint("Horizontal", 3),
    Sketcher.Constraint("DistanceY", 0, 2, 0, 1, 20.0),
    Sketcher.Constraint("DistanceX", 1, 2, -1, 1, 21.0),
    Sketcher.Constraint("DistanceY", -1, 1, 0, 2, 96.68),
    Sketcher.Constraint("DistanceX", 1, 2, 1, 1, 13.008512),
])
pad14 = body.newObject("PartDesign::Pad", "Pad013")
pad14.Profile = sketch29
pad14.Length = 3.08
pad14.Reversed = True

sketch30 = body.newObject("Sketcher::SketchObject", "Sketch029")
sketch30.AttachmentSupport = (doc.getObject("YZ_Plane"), [""])
sketch30.MapMode = "FlatFace"
sketch30.AttachmentOffset = App.Placement(V(0, 0, -7.991488), App.Rotation())
sketch30.addGeometry([
    Part.Circle(V(106.634392, -30.22, 0), V(0, 0, 1), 2.985),
    Part.Circle(V(106.68, 28.59, 0), V(0, 0, 1), 2.985),
], False)
sketch30.addConstraint([
    Sketcher.Constraint("Equal", 0, 1),
    Sketcher.Constraint("Diameter", 0, 5.97),
    Sketcher.Constraint("DistanceY", 0, 3, -1, 1, 30.22),
    Sketcher.Constraint("DistanceX", -1, 1, 1, 3, 106.68),
    Sketcher.Constraint("DistanceY", -1, 1, 1, 3, 28.59),
    Sketcher.Constraint("DistanceX", -1, 1, 0, 3, 106.634392),
])
pocket16 = body.newObject("PartDesign::Pocket", "Pocket015")
pocket16.Profile = sketch30
pocket16.Type = "ThroughAll"

doc.recompute()
